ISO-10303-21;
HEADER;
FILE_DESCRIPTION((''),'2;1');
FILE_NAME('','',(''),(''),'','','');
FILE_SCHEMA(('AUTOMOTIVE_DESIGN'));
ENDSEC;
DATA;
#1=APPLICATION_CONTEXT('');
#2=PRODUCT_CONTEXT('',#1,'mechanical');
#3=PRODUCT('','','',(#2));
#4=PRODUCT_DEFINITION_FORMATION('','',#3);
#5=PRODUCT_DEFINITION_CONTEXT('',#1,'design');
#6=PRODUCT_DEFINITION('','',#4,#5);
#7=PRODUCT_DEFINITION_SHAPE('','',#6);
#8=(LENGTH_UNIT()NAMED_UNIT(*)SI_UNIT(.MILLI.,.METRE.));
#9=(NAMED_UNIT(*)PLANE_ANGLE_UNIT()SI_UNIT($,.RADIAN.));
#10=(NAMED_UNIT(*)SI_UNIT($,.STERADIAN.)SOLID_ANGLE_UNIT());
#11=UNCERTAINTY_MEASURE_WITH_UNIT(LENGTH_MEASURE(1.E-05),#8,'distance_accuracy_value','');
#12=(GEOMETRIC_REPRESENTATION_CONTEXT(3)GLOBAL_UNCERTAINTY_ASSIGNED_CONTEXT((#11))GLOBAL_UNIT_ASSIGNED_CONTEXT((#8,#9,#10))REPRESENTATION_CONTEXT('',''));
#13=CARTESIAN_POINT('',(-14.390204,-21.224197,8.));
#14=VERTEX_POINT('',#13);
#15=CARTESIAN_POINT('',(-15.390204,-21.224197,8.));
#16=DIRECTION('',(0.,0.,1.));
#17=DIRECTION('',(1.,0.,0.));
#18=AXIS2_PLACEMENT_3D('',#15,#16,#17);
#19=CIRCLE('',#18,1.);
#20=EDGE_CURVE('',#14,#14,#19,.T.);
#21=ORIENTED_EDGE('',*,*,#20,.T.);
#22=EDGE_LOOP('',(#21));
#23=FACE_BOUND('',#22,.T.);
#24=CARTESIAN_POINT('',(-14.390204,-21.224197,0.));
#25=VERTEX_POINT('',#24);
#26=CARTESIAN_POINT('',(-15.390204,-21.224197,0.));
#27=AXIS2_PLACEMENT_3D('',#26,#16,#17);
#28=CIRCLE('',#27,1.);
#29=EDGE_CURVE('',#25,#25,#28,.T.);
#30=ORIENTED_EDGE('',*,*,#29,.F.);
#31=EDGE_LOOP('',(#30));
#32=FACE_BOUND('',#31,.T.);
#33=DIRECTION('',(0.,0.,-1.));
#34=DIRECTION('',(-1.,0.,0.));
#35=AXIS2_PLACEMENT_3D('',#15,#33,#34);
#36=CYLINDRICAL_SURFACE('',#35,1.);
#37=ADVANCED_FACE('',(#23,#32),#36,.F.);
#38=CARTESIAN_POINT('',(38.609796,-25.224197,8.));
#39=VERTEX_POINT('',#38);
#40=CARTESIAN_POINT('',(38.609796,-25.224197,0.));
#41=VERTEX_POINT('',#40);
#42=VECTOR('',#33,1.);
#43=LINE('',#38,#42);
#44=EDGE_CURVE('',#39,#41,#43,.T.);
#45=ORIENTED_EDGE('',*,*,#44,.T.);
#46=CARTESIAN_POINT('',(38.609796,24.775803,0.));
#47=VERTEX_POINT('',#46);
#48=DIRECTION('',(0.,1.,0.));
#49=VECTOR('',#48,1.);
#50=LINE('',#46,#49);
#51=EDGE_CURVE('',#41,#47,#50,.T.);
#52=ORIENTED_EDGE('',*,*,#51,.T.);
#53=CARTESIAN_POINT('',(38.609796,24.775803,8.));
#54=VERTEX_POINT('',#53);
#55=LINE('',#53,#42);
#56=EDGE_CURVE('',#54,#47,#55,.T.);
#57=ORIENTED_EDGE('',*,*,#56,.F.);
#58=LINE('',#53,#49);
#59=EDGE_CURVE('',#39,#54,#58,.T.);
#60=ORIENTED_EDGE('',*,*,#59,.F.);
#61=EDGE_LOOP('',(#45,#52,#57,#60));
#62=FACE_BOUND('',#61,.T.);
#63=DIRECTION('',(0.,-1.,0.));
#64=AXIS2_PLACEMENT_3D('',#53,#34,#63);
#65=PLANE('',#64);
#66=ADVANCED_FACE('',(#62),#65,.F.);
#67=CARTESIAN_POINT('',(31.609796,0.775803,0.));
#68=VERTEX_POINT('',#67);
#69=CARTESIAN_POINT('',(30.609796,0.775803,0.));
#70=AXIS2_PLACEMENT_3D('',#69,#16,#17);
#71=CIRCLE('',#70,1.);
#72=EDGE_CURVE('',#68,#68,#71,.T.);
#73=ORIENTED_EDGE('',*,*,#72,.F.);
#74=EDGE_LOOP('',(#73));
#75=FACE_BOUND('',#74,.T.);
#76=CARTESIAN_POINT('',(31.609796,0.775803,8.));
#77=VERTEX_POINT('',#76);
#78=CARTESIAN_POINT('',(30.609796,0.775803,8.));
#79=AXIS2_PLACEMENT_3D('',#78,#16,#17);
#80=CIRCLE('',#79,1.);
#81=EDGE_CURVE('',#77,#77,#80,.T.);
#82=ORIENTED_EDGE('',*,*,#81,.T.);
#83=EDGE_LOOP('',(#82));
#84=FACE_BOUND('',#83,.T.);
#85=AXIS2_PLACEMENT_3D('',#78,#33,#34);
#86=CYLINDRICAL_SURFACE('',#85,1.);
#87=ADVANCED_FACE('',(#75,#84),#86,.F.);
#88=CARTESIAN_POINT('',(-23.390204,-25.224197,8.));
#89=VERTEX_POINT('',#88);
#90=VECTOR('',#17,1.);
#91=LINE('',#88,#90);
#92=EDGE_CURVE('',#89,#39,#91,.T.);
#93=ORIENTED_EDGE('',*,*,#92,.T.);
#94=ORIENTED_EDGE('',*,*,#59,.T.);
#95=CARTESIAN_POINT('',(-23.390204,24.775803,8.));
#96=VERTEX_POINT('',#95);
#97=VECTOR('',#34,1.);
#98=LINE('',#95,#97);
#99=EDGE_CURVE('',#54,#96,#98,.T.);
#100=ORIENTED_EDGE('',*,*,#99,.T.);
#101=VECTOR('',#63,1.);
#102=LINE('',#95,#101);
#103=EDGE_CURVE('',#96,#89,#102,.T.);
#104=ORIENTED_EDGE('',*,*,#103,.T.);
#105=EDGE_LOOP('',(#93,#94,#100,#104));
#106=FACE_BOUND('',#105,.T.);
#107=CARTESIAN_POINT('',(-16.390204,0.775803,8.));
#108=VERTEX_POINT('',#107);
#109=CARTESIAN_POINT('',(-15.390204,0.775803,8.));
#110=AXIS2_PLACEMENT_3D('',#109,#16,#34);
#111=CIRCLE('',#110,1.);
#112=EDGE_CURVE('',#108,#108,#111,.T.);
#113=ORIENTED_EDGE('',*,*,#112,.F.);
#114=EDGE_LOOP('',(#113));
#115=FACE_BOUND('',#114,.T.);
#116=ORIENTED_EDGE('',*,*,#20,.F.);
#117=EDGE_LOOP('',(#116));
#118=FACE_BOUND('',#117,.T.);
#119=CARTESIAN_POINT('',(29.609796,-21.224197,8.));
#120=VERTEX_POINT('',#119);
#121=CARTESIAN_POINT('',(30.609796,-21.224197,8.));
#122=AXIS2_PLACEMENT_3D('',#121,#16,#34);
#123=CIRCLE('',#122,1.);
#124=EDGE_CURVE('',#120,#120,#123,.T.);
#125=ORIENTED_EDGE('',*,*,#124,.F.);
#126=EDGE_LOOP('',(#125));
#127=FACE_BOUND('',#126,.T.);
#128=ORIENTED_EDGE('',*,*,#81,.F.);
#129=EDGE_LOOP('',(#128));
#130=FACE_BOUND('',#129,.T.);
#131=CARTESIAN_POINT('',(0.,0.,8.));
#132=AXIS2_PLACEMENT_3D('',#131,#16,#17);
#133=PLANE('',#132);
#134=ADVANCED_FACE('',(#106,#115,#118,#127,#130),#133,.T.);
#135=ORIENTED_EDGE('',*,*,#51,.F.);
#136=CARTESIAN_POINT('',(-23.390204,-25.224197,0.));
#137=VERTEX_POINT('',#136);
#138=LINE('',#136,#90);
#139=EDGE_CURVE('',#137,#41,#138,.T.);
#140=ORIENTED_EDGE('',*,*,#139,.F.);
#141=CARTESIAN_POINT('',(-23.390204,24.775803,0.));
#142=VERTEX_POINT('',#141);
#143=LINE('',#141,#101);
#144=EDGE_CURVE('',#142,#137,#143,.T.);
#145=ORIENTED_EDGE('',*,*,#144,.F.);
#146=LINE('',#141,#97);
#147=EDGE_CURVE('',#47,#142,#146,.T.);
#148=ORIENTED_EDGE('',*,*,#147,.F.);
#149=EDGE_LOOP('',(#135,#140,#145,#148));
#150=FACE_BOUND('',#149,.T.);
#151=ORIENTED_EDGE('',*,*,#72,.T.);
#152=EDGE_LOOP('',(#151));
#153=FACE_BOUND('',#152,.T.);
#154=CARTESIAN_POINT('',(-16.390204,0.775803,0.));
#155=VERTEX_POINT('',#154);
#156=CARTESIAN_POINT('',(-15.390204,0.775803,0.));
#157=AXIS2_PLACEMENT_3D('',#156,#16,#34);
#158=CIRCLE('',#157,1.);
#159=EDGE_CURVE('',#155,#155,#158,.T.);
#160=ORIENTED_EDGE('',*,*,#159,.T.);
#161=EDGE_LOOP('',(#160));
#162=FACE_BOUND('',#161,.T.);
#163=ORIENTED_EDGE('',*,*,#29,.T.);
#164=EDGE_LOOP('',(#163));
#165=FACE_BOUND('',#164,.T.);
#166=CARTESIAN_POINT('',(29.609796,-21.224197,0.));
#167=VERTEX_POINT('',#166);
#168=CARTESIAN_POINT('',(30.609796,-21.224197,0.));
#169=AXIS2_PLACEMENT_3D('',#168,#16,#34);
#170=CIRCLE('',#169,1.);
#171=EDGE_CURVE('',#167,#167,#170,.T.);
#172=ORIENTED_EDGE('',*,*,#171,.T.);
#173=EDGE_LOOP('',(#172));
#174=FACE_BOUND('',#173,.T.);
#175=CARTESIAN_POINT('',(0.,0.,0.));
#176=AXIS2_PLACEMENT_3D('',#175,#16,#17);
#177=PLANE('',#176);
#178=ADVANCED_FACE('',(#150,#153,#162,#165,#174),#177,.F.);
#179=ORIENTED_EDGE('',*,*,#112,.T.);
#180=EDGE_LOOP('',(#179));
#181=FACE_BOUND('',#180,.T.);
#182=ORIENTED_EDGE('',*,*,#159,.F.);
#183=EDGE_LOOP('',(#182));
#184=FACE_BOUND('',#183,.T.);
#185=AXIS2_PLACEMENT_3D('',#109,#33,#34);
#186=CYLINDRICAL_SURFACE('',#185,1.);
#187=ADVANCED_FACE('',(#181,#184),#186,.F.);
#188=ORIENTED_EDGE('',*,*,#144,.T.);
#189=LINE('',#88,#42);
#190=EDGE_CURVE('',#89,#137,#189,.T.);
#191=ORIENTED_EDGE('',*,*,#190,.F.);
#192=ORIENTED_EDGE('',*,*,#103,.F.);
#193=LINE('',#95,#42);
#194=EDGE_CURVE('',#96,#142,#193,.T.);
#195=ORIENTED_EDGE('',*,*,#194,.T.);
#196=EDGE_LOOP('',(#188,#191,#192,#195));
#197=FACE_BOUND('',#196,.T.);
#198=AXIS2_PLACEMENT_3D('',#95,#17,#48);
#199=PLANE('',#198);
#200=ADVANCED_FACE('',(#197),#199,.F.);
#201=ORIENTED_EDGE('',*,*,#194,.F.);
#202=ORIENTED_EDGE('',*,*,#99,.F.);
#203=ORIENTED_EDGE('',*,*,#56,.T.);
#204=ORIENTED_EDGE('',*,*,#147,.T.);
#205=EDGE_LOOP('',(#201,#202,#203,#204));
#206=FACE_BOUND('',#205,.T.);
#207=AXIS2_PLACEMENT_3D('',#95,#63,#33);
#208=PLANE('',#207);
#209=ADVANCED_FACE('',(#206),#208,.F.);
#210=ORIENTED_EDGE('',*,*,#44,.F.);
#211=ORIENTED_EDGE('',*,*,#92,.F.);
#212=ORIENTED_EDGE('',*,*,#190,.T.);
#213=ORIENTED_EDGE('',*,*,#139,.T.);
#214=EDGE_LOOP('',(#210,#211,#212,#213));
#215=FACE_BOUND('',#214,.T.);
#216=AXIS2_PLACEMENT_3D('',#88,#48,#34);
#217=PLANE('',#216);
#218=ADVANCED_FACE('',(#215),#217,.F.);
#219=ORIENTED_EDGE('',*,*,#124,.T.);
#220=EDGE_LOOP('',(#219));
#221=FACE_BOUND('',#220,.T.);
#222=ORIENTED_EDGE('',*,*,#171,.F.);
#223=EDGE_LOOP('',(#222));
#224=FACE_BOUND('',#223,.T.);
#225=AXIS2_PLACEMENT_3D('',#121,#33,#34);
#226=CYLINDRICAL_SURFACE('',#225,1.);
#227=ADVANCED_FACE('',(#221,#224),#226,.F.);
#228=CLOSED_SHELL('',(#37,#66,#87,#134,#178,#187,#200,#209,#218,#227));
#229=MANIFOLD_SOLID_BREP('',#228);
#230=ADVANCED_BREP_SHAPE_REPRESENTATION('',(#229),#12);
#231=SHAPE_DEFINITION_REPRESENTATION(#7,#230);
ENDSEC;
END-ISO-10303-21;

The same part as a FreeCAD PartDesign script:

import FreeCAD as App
import Part
import Sketcher
from FreeCAD import Vector

doc = App.newDocument("Part")
body = doc.addObject("PartDesign::Body", "Body")

sketch1 = body.newObject("Sketcher::SketchObject", "Sketch")
sketch1.AttachmentSupport = (doc.getObject("XY_Plane"), [""])
sketch1.MapMode = "FlatFace"
sketch1.addGeometry([
    Part.LineSegment(Vector(-23.4, 24.8, 0), Vector(-23.4, -25.2, 0)),
    Part.LineSegment(Vector(-23.4, -25.2, 0), Vector(38.6, -25.2, 0)),
    Part.LineSegment(Vector(38.6, -25.2, 0), Vector(38.6, 24.8, 0)),
    Part.LineSegment(Vector(38.6, 24.8, 0), Vector(-23.4, 24.8, 0)),
    Part.Circle(Vector(-15.4, -21.2, 0), Vector(0, 0, 1), 1),
    Part.Circle(Vector(30.6, -21.2, 0), Vector(0, 0, 1), 1),
    Part.Circle(Vector(-15.4, 0.8, 0), Vector(0, 0, 1), 1),
    Part.Circle(Vector(30.6, 0.8, 0), Vector(0, 0, 1), 1),
], False)
sketch1.addConstraint([
    Sketcher.Constraint("Coincident", 0, 2, 1, 1),
    Sketcher.Constraint("Coincident", 1, 2, 2, 1),
    Sketcher.Constraint("Coincident", 2, 2, 3, 1),
    Sketcher.Constraint("Coincident", 3, 2, 0, 1),
    Sketcher.Constraint("Vertical", 0),
    Sketcher.Constraint("Horizontal", 1),
    Sketcher.Constraint("Vertical", 2),
    Sketcher.Constraint("Horizontal", 3),
    Sketcher.Constraint("Equal", 4, 5),
    Sketcher.Constraint("Equal", 5, 6),
    Sketcher.Constraint("Equal", 6, 7),
    Sketcher.Constraint("Horizontal", 4, 3, 5, 3),
    Sketcher.Constraint("Horizontal", 6, 3, 7, 3),
    Sketcher.Constraint("Vertical", 4, 3, 6, 3),
    Sketcher.Constraint("Vertical", 5, 3, 7, 3),
    Sketcher.Constraint("Diameter", 4, 2.0),
    Sketcher.Constraint("DistanceX", 1, 1, 1, 2, 62.0),
    Sketcher.Constraint("DistanceY", 0, 2, 0, 1, 50.0),
    Sketcher.Constraint("DistanceX", 4, 3, 5, 3, 46.0),
    Sketcher.Constraint("DistanceY", 4, 3, 6, 3, 22.0),
    Sketcher.Constraint("DistanceX", 0, 2, 4, 3, 8.0),
    Sketcher.Constraint("DistanceY", 0, 2, 4, 3, 4.0),
    Sketcher.Constraint("DistanceX", 4, 3, -1, 1, 15.390204),
    Sketcher.Constraint("DistanceY", 4, 3, -1, 1, 21.224197),
])
pad1 = body.newObject("PartDesign::Pad", "Pad")
pad1.Profile = sketch1
pad1.Length = 8

doc.recompute()
